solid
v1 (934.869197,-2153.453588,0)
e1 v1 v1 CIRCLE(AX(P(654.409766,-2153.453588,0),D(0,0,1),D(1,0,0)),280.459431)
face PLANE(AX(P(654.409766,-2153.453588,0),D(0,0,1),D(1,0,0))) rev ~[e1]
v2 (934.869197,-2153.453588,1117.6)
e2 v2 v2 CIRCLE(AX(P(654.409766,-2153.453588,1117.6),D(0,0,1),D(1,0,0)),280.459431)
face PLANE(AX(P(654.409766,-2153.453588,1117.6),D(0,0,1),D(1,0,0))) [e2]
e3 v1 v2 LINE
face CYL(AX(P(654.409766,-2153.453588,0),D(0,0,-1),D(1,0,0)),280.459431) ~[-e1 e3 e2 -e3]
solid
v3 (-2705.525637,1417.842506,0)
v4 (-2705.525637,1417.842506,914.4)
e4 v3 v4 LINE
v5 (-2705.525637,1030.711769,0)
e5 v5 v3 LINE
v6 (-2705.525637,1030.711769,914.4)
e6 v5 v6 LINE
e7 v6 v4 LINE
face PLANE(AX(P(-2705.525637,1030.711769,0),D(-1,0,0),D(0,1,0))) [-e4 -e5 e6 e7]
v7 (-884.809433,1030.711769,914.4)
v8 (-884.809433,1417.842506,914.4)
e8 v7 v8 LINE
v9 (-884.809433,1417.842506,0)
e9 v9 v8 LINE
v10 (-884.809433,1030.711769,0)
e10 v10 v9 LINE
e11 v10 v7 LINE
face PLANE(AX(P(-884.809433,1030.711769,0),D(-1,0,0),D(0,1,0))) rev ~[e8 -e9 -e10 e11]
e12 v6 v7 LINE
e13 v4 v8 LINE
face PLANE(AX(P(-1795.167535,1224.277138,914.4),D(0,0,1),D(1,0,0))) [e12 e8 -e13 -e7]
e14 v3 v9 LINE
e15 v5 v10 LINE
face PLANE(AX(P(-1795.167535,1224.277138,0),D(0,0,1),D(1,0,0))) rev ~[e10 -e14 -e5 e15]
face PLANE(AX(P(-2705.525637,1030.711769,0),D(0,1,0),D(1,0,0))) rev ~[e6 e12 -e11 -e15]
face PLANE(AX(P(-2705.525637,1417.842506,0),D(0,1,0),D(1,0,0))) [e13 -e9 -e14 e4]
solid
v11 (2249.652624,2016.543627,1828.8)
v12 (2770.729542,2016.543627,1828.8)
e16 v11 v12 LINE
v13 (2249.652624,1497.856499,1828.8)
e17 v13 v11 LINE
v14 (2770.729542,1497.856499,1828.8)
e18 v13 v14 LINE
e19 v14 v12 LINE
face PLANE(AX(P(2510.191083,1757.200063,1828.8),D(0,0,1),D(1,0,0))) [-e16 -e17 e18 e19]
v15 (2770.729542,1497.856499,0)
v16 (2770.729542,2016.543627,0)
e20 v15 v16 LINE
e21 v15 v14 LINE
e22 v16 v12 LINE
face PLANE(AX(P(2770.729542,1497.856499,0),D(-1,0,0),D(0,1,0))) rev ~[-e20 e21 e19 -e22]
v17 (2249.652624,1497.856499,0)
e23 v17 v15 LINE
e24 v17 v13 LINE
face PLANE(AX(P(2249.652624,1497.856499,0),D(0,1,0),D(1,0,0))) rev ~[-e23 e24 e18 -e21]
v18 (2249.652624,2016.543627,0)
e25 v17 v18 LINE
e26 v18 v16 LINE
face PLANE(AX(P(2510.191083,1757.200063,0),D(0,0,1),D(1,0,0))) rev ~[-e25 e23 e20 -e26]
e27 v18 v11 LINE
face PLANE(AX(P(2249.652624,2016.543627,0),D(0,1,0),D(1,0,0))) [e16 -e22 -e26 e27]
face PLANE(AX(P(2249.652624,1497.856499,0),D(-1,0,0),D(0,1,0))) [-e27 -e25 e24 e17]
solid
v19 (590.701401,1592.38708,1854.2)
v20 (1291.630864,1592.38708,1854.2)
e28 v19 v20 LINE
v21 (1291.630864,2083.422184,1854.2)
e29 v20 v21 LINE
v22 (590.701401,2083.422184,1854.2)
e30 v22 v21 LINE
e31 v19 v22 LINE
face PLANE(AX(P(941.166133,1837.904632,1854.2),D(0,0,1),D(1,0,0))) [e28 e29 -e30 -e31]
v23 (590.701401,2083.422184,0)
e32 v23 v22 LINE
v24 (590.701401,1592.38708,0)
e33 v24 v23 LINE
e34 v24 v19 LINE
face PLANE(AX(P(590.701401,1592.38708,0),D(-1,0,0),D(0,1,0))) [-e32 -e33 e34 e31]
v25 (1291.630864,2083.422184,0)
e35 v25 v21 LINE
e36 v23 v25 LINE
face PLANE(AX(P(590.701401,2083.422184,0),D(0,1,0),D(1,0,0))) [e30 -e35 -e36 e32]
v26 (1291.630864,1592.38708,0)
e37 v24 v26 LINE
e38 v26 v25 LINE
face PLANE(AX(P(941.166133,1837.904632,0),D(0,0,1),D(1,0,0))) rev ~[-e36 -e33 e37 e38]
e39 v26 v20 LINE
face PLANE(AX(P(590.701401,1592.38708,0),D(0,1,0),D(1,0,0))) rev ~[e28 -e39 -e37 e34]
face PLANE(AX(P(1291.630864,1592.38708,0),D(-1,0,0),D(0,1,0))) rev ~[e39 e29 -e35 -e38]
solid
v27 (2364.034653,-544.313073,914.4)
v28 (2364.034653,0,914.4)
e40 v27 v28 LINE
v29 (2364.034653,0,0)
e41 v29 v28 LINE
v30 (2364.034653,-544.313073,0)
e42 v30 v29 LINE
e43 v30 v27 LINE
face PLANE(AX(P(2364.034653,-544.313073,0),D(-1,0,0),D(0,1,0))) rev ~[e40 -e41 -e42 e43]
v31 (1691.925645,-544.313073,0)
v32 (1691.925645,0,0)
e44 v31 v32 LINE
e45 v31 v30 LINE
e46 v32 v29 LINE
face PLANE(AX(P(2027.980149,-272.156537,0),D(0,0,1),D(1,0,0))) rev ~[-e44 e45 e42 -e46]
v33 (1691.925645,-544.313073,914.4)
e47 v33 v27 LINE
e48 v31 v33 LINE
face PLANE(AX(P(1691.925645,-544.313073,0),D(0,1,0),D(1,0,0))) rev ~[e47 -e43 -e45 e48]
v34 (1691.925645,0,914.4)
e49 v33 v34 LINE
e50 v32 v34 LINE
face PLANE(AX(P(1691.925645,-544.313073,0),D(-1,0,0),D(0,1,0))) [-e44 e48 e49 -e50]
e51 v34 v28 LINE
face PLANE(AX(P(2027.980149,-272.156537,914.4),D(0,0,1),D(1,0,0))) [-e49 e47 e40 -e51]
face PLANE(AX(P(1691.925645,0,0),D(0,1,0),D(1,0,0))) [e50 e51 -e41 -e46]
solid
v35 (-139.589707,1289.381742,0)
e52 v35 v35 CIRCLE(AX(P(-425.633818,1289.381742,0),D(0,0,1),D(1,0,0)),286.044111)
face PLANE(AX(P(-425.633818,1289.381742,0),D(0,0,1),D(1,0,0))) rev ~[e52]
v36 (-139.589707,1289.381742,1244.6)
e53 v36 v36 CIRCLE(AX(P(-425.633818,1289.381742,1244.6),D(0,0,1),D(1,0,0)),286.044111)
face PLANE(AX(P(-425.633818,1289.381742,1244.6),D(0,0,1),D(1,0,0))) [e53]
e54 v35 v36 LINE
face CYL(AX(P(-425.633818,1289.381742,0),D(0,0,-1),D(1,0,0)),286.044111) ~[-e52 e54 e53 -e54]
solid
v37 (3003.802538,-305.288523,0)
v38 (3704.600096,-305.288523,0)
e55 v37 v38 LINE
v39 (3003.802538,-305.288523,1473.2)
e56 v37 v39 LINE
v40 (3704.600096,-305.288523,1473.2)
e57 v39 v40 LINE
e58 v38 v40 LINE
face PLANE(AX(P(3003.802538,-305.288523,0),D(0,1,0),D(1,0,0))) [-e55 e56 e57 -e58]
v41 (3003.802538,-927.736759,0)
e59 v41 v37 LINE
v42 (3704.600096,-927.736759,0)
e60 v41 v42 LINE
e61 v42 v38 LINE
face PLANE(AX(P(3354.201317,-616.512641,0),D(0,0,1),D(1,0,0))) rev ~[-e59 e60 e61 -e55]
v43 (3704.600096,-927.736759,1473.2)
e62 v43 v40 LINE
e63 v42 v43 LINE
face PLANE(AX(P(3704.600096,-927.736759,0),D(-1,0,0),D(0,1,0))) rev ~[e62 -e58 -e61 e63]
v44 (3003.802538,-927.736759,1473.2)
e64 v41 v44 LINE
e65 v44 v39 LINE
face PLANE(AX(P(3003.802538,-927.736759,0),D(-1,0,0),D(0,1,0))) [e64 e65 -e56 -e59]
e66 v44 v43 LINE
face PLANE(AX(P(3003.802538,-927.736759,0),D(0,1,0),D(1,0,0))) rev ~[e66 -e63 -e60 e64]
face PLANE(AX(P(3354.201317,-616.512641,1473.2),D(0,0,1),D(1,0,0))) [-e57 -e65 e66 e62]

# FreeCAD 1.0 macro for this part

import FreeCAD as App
import Part
import Sketcher

V = App.Vector
Q = App.Units.Quantity

doc = App.newDocument("Part")
body = doc.addObject("PartDesign::Body", "Body")

sketch1 = doc.addObject("Sketcher::SketchObject", "Sketch")
body.addObject(sketch1)
sketch1.AttachmentSupport = (doc.XY_Plane, [""])
sketch1.MapMode = "FlatFace"
sketch1.addGeometry([
    Part.LineSegment(V(1826, -91, 0), V(1826, -630, 0)),
    Part.LineSegment(V(1826, -630, 0), V(2746, -630, 0)),
    Part.LineSegment(V(2746, -630, 0), V(2746, -91, 0)),
    Part.LineSegment(V(2746, -91, 0), V(1826, -91, 0)),
], False)
sketch1.addConstraint([
    Sketcher.Constraint("Coincident", 0, 2, 1, 1),
    Sketcher.Constraint("Coincident", 1, 2, 2, 1),
    Sketcher.Constraint("Coincident", 2, 2, 3, 1),
    Sketcher.Constraint("Coincident", 3, 2, 0, 1),
    Sketcher.Constraint("Vertical", 0),
    Sketcher.Constraint("Horizontal", 1),
    Sketcher.Constraint("Vertical", 2),
    Sketcher.Constraint("Horizontal", 3),
    Sketcher.Constraint("DistanceX", 1, 1, 1, 2, Q("919.162988 mm")),
    Sketcher.Constraint("DistanceY", 0, 2, 0, 1, Q("539.31427 mm")),
    Sketcher.Constraint("DistanceX", -1, 1, 0, 2, Q("1826.412678 mm")),
    Sketcher.Constraint("DistanceY", 0, 2, -1, 1, Q("630.190432 mm")),
])
pad1 = doc.addObject("PartDesign::Pad", "Pad")
body.addObject(pad1)
pad1.Profile = sketch1
pad1.Length = Q("1 in")
body2 = doc.addObject("PartDesign::Body", "Body001")

sketch2 = doc.addObject("Sketcher::SketchObject", "Sketch001")
body2.addObject(sketch2)
sketch2.AttachmentSupport = (doc.getObject("XY_Plane001"), [""])
sketch2.MapMode = "FlatFace"
sketch2.addGeometry([
    Part.LineSegment(V(591, 2083, 0), V(591, 1592, 0)),
    Part.LineSegment(V(591, 1592, 0), V(1292, 1592, 0)),
    Part.LineSegment(V(1292, 1592, 0), V(1292, 2083, 0)),
    Part.LineSegment(V(1292, 2083, 0), V(591, 2083, 0)),
], False)
sketch2.addConstraint([
    Sketcher.Constraint("Coincident", 0, 2, 1, 1),
    Sketcher.Constraint("Coincident", 1, 2, 2, 1),
    Sketcher.Constraint("Coincident", 2, 2, 3, 1),
    Sketcher.Constraint("Coincident", 3, 2, 0, 1),
    Sketcher.Constraint("Vertical", 0),
    Sketcher.Constraint("Horizontal", 1),
    Sketcher.Constraint("Vertical", 2),
    Sketcher.Constraint("Horizontal", 3),
    Sketcher.Constraint("DistanceX", -1, 1, 0, 2, Q("590.701401 mm")),
    Sketcher.Constraint("DistanceX", 1, 1, 1, 2, Q("700.929463 mm")),
    Sketcher.Constraint("DistanceY", 0, 2, 0, 1, Q("491.035104 mm")),
    Sketcher.Constraint("DistanceY", -1, 1, 0, 2, Q("1592.38708 mm")),
])
pad2 = doc.addObject("PartDesign::Pad", "Pad001")
body2.addObject(pad2)
pad2.Profile = sketch2
pad2.Length = Q("73 in")
body3 = doc.addObject("PartDesign::Body", "Body002")

sketch3 = doc.addObject("Sketcher::SketchObject", "Sketch002")
body3.addObject(sketch3)
sketch3.AttachmentSupport = (doc.getObject("XY_Plane002"), [""])
sketch3.MapMode = "FlatFace"
sketch3.addGeometry([
    Part.LineSegment(V(1692, 0, 0), V(1692, -544, 0)),
    Part.LineSegment(V(1692, -544, 0), V(2364, -544, 0)),
    Part.LineSegment(V(2364, -544, 0), V(2364, 0, 0)),
    Part.LineSegment(V(2364, 0, 0), V(1692, 0, 0)),
], False)
sketch3.addConstraint([
    Sketcher.Constraint("Coincident", 0, 2, 1, 1),
    Sketcher.Constraint("Coincident", 1, 2, 2, 1),
    Sketcher.Constraint("Coincident", 2, 2, 3, 1),
    Sketcher.Constraint("Coincident", 3, 2, 0, 1),
    Sketcher.Constraint("Vertical", 0),
    Sketcher.Constraint("Horizontal", 1),
    Sketcher.Constraint("Vertical", 2),
    Sketcher.Constraint("Horizontal", 3),
    Sketcher.Constraint("PointOnObject", 2, 2, -1),
    Sketcher.Constraint("DistanceX", 1, 1, 1, 2, Q("672.109008 mm")),
    Sketcher.Constraint("DistanceY", 0, 2, 0, 1, Q("544.313073 mm")),
    Sketcher.Constraint("DistanceX", -1, 1, 0, 2, Q("1691.925645 mm")),
])
pad3 = doc.addObject("PartDesign::Pad", "Pad002")
body3.addObject(pad3)
pad3.Profile = sketch3
pad3.Length = Q("36 in")
body4 = doc.addObject("PartDesign::Body", "Body003")

sketch4 = doc.addObject("Sketcher::SketchObject", "Sketch003")
body4.addObject(sketch4)
sketch4.AttachmentSupport = (doc.getObject("XY_Plane003"), [""])
sketch4.MapMode = "FlatFace"
sketch4.addGeometry(Part.Circle(V(-395, 1610, 0), V(0, 0, 1), 179), False)
sketch4.addConstraint([
    Sketcher.Constraint("Diameter", 0, Q("357.480868 mm")),
    Sketcher.Constraint("DistanceX", 0, 3, -1, 1, Q("395.410061 mm")),
    Sketcher.Constraint("DistanceY", -1, 1, 0, 3, Q("1610.258222 mm")),
])
pad4 = doc.addObject("PartDesign::Pad", "Pad003")
body4.addObject(pad4)
pad4.Profile = sketch4
pad4.Length = Q("37 in")
body5 = doc.addObject("PartDesign::Body", "Body004")

sketch5 = doc.addObject("Sketcher::SketchObject", "Sketch004")
body5.addObject(sketch5)
sketch5.AttachmentSupport = (doc.getObject("XY_Plane004"), [""])
sketch5.MapMode = "FlatFace"
sketch5.addGeometry([
    Part.LineSegment(V(2250, 2017, 0), V(2250, 1498, 0)),
    Part.LineSegment(V(2250, 1498, 0), V(2771, 1498, 0)),
    Part.LineSegment(V(2771, 1498, 0), V(2771, 2017, 0)),
    Part.LineSegment(V(2771, 2017, 0), V(2250, 2017, 0)),
], False)
sketch5.addConstraint([
    Sketcher.Constraint("Coincident", 0, 2, 1, 1),
    Sketcher.Constraint("Coincident", 1, 2, 2, 1),
    Sketcher.Constraint("Coincident", 2, 2, 3, 1),
    Sketcher.Constraint("Coincident", 3, 2, 0, 1),
    Sketcher.Constraint("Vertical", 0),
    Sketcher.Constraint("Horizontal", 1),
    Sketcher.Constraint("Vertical", 2),
    Sketcher.Constraint("Horizontal", 3),
    Sketcher.Constraint("DistanceX", 1, 1, 1, 2, Q("521.076918 mm")),
    Sketcher.Constraint("DistanceY", 0, 2, 0, 1, Q("518.687129 mm")),
    Sketcher.Constraint("DistanceY", -1, 1, 0, 2, Q("1497.856499 mm")),
    Sketcher.Constraint("DistanceX", -1, 1, 0, 2, Q("2249.652624 mm")),
])
pad5 = doc.addObject("PartDesign::Pad", "Pad004")
body5.addObject(pad5)
pad5.Profile = sketch5
pad5.Length = Q("72 in")
body6 = doc.addObject("PartDesign::Body", "Body005")

sketch6 = doc.addObject("Sketcher::SketchObject", "Sketch005")
body6.addObject(sketch6)
sketch6.AttachmentSupport = (doc.getObject("XY_Plane005"), [""])
sketch6.MapMode = "FlatFace"
sketch6.addGeometry([
    Part.LineSegment(V(3004, -305, 0), V(3004, -928, 0)),
    Part.LineSegment(V(3004, -928, 0), V(3705, -928, 0)),
    Part.LineSegment(V(3705, -928, 0), V(3705, -305, 0)),
    Part.LineSegment(V(3705, -305, 0), V(3004, -305, 0)),
], False)
sketch6.addConstraint([
    Sketcher.Constraint("Coincident", 0, 2, 1, 1),
    Sketcher.Constraint("Coincident", 1, 2, 2, 1),
    Sketcher.Constraint("Coincident", 2, 2, 3, 1),
    Sketcher.Constraint("Coincident", 3, 2, 0, 1),
    Sketcher.Constraint("Vertical", 0),
    Sketcher.Constraint("Horizontal", 1),
    Sketcher.Constraint("Vertical", 2),
    Sketcher.Constraint("Horizontal", 3),
    Sketcher.Constraint("DistanceX", 1, 1, 1, 2, Q("700.797558 mm")),
    Sketcher.Constraint("DistanceY", 0, 2, 0, 1, Q("622.448236 mm")),
    Sketcher.Constraint("DistanceY", 0, 2, -1, 1, Q("927.736759 mm")),
    Sketcher.Constraint("DistanceX", -1, 1, 0, 2, Q("3003.802538 mm")),
])
pad6 = doc.addObject("PartDesign::Pad", "Pad005")
body6.addObject(pad6)
pad6.Profile = sketch6
pad6.Length = Q("58 in")
body7 = doc.addObject("PartDesign::Body", "Body006")

sketch7 = doc.addObject("Sketcher::SketchObject", "Sketch006")
body7.addObject(sketch7)
sketch7.AttachmentSupport = (doc.getObject("XY_Plane006"), [""])
sketch7.MapMode = "FlatFace"
sketch7.addGeometry(Part.Circle(V(-951, -655, 0), V(0, 0, 1), 135), False)
sketch7.addConstraint([
    Sketcher.Constraint("Diameter", 0, Q("270.920286 mm")),
    Sketcher.Constraint("DistanceY", 0, 3, -1, 1, Q("655.183971 mm")),
    Sketcher.Constraint("DistanceX", 0, 3, -1, 1, Q("951.282263 mm")),
])
pad7 = doc.addObject("PartDesign::Pad", "Pad006")
body7.addObject(pad7)
pad7.Profile = sketch7
pad7.Length = Q("40 in")
body8 = doc.addObject("PartDesign::Body", "Body007")

sketch8 = doc.addObject("Sketcher::SketchObject", "Sketch007")
body8.addObject(sketch8)
sketch8.AttachmentSupport = (doc.getObject("XY_Plane007"), [""])
sketch8.MapMode = "FlatFace"
sketch8.addGeometry(Part.Circle(V(654, -2153, 0), V(0, 0, 1), 280), False)
sketch8.addConstraint([
    Sketcher.Constraint("Diameter", 0, Q("560.918862 mm")),
    Sketcher.Constraint("DistanceX", -1, 1, 0, 3, Q("654.409766 mm")),
    Sketcher.Constraint("DistanceY", 0, 3, -1, 1, Q("2153.453588 mm")),
])
pad8 = doc.addObject("PartDesign::Pad", "Pad007")
body8.addObject(pad8)
pad8.Profile = sketch8
pad8.Length = Q("44 in")
body9 = doc.addObject("PartDesign::Body", "Body008")

sketch9 = doc.addObject("Sketcher::SketchObject", "Sketch008")
body9.addObject(sketch9)
sketch9.AttachmentSupport = (doc.getObject("XY_Plane008"), [""])
sketch9.MapMode = "FlatFace"
sketch9.addGeometry(Part.Circle(V(-426, 1289, 0), V(0, 0, 1), 286), False)
sketch9.addConstraint([
    Sketcher.Constraint("Diameter", 0, Q("572.088222 mm")),
    Sketcher.Constraint("DistanceX", 0, 3, -1, 1, Q("425.633818 mm")),
    Sketcher.Constraint("DistanceY", -1, 1, 0, 3, Q("1289.381742 mm")),
])
pad9 = doc.addObject("PartDesign::Pad", "Pad008")
body9.addObject(pad9)
pad9.Profile = sketch9
pad9.Length = Q("49 in")
body10 = doc.addObject("PartDesign::Body", "Body009")

sketch10 = doc.addObject("Sketcher::SketchObject", "Sketch009")
body10.addObject(sketch10)
sketch10.AttachmentSupport = (doc.getObject("XY_Plane009"), [""])
sketch10.MapMode = "FlatFace"
sketch10.addGeometry([
    Part.LineSegment(V(-2706, 1418, 0), V(-2706, 1031, 0)),
    Part.LineSegment(V(-2706, 1031, 0), V(-885, 1031, 0)),
    Part.LineSegment(V(-885, 1031, 0), V(-885, 1418, 0)),
    Part.LineSegment(V(-885, 1418, 0), V(-2706, 1418, 0)),
], False)
sketch10.addConstraint([
    Sketcher.Constraint("Coincident", 0, 2, 1, 1),
    Sketcher.Constraint("Coincident", 1, 2, 2, 1),
    Sketcher.Constraint("Coincident", 2, 2, 3, 1),
    Sketcher.Constraint("Coincident", 3, 2, 0, 1),
    Sketcher.Constraint("Vertical", 0),
    Sketcher.Constraint("Horizontal", 1),
    Sketcher.Constraint("Vertical", 2),
    Sketcher.Constraint("Horizontal", 3),
    Sketcher.Constraint("DistanceX", 1, 1, 1, 2, Q("1820.716203 mm")),
    Sketcher.Constraint("DistanceY", 0, 2, 0, 1, Q("387.130737 mm")),
    Sketcher.Constraint("DistanceY", -1, 1, 0, 2, Q("1030.711769 mm")),
    Sketcher.Constraint("DistanceX", 0, 2, -1, 1, Q("2705.525637 mm")),
])
pad10 = doc.addObject("PartDesign::Pad", "Pad009")
body10.addObject(pad10)
pad10.Profile = sketch10
pad10.Length = Q("36 in")
body.Visibility = False
body4.Visibility = False
body7.Visibility = False

doc.recompute()
